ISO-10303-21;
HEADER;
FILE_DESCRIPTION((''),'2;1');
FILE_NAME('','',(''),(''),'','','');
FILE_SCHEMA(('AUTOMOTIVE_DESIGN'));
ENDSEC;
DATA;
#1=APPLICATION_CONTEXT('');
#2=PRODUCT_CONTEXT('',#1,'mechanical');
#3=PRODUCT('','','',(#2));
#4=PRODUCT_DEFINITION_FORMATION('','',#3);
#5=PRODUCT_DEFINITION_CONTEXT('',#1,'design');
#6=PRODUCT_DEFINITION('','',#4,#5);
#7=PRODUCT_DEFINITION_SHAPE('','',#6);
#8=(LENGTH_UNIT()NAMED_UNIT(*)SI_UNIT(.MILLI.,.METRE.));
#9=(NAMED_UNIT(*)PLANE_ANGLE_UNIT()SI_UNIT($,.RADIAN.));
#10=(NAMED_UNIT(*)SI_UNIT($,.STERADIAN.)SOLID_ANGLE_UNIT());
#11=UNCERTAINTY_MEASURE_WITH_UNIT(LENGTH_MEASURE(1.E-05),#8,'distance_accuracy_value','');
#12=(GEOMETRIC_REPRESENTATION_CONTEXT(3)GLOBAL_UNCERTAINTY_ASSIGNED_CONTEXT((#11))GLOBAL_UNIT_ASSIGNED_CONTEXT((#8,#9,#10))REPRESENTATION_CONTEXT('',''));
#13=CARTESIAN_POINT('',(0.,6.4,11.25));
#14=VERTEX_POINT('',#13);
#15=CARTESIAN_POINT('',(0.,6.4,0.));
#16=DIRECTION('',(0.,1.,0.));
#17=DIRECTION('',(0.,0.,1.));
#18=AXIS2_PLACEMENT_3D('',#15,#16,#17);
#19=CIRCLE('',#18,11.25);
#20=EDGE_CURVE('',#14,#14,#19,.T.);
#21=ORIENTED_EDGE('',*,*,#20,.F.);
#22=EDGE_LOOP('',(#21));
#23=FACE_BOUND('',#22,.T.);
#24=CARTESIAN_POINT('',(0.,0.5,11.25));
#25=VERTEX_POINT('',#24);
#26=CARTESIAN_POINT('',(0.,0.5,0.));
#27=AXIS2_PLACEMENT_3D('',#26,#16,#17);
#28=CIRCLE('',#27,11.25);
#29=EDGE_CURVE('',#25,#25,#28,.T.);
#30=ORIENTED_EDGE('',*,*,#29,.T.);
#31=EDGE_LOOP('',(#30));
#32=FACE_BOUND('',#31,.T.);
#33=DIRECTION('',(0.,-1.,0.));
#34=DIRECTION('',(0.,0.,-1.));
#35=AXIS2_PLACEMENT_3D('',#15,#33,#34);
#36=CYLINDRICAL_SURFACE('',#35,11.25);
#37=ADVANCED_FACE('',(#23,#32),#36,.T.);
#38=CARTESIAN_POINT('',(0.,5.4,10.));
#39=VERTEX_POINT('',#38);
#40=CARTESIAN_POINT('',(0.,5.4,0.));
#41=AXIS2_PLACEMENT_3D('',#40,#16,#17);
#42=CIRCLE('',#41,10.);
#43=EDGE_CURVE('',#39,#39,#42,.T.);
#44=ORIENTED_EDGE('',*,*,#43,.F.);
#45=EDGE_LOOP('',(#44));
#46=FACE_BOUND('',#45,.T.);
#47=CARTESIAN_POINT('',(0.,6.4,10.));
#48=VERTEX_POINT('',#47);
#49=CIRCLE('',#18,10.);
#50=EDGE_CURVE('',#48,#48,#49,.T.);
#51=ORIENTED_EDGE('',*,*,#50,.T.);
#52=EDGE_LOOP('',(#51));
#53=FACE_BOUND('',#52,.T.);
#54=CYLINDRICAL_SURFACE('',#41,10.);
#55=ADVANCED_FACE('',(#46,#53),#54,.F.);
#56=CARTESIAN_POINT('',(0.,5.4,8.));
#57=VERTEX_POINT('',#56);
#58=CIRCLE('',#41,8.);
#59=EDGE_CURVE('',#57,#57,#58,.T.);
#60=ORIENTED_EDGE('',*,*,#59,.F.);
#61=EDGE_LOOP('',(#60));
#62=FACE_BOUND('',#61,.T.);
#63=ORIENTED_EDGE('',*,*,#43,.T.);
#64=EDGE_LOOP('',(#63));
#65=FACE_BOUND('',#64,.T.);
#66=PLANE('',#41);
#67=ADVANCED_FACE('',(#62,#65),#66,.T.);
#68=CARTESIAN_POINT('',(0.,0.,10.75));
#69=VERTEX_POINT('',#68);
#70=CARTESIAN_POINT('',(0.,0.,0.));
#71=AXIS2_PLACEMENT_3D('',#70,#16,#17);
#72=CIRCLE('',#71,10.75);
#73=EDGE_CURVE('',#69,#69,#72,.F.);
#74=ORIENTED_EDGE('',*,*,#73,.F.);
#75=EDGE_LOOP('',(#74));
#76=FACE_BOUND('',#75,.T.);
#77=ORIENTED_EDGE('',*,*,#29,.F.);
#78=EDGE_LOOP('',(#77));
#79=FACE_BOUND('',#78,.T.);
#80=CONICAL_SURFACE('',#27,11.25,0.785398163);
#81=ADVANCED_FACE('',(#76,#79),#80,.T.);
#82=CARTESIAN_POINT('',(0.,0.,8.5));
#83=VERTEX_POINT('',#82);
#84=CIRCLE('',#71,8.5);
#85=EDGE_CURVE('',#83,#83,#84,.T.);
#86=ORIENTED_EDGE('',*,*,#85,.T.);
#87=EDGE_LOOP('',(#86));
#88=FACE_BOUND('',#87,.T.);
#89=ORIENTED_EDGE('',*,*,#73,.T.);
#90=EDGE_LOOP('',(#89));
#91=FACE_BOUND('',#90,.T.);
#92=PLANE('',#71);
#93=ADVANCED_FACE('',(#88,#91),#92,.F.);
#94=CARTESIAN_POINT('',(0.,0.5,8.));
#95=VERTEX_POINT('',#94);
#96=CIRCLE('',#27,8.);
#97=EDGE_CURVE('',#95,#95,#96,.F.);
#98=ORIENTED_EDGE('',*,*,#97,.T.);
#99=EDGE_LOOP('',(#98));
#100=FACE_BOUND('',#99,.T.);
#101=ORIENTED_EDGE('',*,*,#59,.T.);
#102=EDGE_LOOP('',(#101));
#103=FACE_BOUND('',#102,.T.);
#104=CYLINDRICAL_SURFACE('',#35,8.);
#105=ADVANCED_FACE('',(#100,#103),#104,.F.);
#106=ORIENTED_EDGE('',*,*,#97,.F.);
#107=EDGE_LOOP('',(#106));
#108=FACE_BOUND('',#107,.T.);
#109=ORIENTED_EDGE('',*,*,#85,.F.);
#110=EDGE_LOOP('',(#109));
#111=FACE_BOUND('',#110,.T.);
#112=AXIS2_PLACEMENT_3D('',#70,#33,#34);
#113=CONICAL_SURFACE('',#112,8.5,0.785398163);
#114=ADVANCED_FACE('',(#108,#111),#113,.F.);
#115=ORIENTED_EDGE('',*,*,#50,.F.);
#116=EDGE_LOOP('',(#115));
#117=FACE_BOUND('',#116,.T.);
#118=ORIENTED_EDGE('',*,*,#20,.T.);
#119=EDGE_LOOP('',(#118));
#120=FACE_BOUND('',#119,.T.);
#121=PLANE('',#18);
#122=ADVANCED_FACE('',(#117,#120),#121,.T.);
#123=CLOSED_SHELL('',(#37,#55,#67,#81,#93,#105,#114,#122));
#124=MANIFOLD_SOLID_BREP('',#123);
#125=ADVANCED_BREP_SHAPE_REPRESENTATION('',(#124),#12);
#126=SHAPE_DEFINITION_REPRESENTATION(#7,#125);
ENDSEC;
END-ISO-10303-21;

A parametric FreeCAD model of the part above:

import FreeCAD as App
import Part
import Sketcher
Q = App.Units.Quantity


def edges_at(feature, points):
    """Names of the edges that pass closest to the given points."""
    edges = feature.Shape.Edges
    near = lambda p: min(range(len(edges)), key=lambda i: edges[i].distToShape(Part.Vertex(*p))[0])
    return sorted({f"Edge{near(p) + 1}" for p in points})

doc = App.newDocument("Part")
body = doc.addObject("PartDesign::Body", "Body")

sketch1 = doc.addObject("Sketcher::SketchObject", "Sketch")
body.addObject(sketch1)
sketch1.AttachmentSupport = (doc.XZ_Plane, [""])
sketch1.MapMode = "FlatFace"
sketch1.addGeometry(Part.Circle(App.Vector(0, 0, 0), App.Vector(0, 0, 1), 11), False)
sketch1.addGeometry(Part.Circle(App.Vector(0, 0, 0), App.Vector(0, 0, 1), 8), False)
sketch1.addConstraint(Sketcher.Constraint("Coincident", 0, 3, -1, 1))
sketch1.addConstraint(Sketcher.Constraint("Coincident", 1, 3, -1, 1))
sketch1.addConstraint(Sketcher.Constraint("Diameter", 1, Q("16 mm")))
sketch1.addConstraint(Sketcher.Constraint("Diameter", 0, Q("22.5 mm")))
pad1 = doc.addObject("PartDesign::Pad", "Pad")
body.addObject(pad1)
pad1.Profile = sketch1
pad1.Length = 6.4
pad1.Reversed = True

sketch2 = doc.addObject("Sketcher::SketchObject", "Sketch001")
body.addObject(sketch2)
sketch2.AttachmentSupport = (doc.XZ_Plane, [""])
sketch2.MapMode = "FlatFace"
sketch2.AttachmentOffset = App.Placement(App.Vector(0, 0, -6.4), App.Rotation())
sketch2.addGeometry(Part.Circle(App.Vector(0, 0, 0), App.Vector(0, 0, 1), 10), False)
sketch2.addConstraint(Sketcher.Constraint("Coincident", 0, 3, -1, 1))
sketch2.addConstraint(Sketcher.Constraint("Diameter", 0, Q("20 mm")))
pocket1 = doc.addObject("PartDesign::Pocket", "Pocket")
body.addObject(pocket1)
pocket1.Profile = sketch2
pocket1.Length = 1
pocket1.Reversed = True
doc.recompute()

chamfer = doc.addObject("PartDesign::Chamfer", "Chamfer")
body.addObject(chamfer)
chamfer.Base = (pocket1, edges_at(pocket1, [(0, 0, -11.25), (0, 0, -8)]))
chamfer.Size = 0.5

doc.recompute()
